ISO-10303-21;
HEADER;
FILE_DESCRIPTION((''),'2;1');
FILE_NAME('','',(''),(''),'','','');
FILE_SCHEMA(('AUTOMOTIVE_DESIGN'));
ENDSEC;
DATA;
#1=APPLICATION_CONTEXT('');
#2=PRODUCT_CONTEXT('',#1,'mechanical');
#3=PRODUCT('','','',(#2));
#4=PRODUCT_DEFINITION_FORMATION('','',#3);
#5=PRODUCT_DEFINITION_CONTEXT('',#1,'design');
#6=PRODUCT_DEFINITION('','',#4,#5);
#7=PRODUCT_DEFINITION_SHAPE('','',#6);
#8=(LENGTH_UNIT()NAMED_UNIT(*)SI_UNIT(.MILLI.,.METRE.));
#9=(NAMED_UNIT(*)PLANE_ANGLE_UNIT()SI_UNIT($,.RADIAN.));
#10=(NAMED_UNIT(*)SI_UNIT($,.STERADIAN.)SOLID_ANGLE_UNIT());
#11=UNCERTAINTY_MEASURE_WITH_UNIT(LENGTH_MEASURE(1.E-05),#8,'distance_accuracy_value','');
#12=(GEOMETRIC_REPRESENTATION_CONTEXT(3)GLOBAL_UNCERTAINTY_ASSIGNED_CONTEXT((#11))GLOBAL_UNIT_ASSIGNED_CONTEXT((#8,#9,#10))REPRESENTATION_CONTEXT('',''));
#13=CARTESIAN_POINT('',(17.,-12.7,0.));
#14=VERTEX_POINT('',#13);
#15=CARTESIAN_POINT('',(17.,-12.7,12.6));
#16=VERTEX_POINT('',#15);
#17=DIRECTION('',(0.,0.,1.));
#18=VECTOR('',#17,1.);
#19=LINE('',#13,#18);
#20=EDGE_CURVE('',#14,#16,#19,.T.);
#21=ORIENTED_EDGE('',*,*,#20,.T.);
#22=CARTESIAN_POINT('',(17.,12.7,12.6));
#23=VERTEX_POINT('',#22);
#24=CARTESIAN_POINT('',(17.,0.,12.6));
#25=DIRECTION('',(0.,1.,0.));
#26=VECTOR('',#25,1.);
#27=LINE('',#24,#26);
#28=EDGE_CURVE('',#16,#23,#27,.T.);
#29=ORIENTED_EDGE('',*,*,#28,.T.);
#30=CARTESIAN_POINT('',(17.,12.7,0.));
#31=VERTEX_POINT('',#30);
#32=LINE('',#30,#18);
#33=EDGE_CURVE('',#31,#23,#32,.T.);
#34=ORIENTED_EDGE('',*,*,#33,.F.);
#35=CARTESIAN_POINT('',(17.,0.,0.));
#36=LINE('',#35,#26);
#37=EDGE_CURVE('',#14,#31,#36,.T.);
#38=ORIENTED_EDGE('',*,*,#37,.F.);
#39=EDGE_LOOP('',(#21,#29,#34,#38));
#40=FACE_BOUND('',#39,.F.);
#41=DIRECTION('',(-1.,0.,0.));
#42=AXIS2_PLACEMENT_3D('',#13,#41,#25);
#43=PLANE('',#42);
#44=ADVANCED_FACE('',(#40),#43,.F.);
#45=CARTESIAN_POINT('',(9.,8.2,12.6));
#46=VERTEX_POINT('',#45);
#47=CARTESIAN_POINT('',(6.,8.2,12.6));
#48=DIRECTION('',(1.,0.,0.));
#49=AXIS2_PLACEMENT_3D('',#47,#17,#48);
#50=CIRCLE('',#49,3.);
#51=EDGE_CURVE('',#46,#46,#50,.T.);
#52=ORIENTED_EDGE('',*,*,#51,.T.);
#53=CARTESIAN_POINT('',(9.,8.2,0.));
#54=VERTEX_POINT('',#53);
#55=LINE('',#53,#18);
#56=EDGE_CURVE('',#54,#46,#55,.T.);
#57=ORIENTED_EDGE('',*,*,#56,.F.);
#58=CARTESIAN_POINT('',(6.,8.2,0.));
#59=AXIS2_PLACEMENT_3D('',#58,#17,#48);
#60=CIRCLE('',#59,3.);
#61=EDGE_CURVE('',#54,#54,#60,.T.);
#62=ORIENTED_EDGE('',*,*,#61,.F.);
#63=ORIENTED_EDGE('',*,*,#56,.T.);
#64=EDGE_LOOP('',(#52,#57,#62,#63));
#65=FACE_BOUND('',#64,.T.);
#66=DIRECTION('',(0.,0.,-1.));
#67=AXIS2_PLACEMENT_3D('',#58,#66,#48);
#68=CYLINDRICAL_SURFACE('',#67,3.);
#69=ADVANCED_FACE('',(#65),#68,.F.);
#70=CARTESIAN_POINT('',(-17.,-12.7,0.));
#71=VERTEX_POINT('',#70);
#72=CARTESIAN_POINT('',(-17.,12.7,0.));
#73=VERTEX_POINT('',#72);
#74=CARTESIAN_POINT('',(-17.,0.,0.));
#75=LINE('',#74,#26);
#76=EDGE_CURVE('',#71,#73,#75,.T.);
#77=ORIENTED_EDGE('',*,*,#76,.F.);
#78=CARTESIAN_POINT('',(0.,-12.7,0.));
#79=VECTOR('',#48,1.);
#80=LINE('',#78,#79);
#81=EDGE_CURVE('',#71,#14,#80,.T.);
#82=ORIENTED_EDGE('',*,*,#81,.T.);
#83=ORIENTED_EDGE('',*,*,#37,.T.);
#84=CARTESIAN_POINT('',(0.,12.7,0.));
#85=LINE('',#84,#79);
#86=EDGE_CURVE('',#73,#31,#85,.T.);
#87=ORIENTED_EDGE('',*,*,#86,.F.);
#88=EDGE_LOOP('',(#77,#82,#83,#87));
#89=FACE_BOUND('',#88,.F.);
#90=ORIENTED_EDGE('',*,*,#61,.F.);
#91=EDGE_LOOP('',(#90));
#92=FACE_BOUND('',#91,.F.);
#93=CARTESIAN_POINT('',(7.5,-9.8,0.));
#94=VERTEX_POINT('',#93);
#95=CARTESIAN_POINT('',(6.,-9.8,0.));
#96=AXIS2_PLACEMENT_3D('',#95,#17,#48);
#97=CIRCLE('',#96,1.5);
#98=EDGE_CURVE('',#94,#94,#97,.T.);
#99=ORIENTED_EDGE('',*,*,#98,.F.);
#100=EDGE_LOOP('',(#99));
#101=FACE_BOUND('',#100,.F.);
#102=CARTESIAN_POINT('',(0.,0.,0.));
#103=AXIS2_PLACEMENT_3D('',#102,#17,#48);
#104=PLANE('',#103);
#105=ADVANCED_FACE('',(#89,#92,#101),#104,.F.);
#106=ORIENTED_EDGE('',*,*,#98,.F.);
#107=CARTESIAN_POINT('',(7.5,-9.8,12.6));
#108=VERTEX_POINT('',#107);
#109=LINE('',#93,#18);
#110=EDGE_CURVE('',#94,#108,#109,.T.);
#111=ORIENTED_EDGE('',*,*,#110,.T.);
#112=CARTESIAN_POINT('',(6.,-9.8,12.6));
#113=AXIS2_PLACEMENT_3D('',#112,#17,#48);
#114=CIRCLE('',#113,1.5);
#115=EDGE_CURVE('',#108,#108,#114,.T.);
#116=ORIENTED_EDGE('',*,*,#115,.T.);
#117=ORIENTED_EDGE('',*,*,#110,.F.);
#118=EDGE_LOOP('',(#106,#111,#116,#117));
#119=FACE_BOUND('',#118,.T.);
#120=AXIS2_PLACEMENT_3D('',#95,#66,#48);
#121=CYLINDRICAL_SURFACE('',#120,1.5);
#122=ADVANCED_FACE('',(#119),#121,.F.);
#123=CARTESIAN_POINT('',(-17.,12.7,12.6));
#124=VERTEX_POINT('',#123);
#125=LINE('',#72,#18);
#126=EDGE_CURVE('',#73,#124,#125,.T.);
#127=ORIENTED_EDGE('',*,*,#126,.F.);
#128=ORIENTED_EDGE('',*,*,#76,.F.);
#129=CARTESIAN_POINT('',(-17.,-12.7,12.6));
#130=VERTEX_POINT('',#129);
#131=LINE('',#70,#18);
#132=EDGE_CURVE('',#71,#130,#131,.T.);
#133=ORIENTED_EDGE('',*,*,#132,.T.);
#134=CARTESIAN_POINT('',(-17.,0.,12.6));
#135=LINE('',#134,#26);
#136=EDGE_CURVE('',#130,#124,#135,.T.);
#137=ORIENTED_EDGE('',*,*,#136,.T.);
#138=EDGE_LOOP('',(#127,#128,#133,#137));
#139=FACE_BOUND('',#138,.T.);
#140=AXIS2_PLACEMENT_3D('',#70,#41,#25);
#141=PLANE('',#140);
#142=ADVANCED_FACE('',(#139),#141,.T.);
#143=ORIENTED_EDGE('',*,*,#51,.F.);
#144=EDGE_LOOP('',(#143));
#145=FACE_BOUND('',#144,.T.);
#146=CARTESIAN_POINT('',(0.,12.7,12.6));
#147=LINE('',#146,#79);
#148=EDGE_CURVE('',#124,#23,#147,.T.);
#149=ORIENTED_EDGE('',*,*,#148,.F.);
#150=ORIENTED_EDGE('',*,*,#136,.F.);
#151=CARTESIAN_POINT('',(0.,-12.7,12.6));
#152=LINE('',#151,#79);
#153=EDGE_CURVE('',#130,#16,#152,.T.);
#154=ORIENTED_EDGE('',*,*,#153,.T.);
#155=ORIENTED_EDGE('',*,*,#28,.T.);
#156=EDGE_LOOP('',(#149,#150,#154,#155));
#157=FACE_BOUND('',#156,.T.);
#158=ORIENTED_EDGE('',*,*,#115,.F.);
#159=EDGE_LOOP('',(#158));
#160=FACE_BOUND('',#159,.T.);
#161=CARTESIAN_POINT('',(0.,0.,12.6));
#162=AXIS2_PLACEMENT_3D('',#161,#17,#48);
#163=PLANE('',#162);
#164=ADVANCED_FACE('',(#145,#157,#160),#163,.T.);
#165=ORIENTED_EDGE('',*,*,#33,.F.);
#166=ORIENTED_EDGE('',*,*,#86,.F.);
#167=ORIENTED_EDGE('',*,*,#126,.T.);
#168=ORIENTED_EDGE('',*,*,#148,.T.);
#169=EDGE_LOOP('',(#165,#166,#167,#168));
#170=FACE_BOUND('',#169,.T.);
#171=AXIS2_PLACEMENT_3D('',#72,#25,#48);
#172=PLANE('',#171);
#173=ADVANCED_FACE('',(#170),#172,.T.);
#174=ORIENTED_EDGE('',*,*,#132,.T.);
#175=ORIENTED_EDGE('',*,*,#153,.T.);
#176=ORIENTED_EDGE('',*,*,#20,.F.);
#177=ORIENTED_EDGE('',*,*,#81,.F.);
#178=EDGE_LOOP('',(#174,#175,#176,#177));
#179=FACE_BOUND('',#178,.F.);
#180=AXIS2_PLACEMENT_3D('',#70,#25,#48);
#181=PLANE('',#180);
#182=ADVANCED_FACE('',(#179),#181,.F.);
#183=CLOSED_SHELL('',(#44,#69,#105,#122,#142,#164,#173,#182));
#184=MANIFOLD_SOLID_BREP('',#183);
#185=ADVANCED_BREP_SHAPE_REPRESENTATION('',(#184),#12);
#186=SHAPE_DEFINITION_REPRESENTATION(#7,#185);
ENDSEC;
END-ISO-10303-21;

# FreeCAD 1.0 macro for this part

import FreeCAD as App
import Part
import Sketcher
from FreeCAD import Vector


def add_polygon(sketch, points):
    """Adds a closed chain of lines whose ends are joined by coincident constraints."""
    first, n = sketch.GeometryCount, len(points)
    for a, b in zip(points, points[1:] + points[:1]):
        sketch.addGeometry(Part.LineSegment(App.Vector(*a, 0), App.Vector(*b, 0)), False)
    for i in range(n):
        sketch.addConstraint(Sketcher.Constraint("Coincident", first + i, 2, first + (i + 1) % n, 1))

doc = App.newDocument("Part")
body = doc.addObject("PartDesign::Body", "Body")

# Sketch on XY plane
sketch1 = body.newObject("Sketcher::SketchObject", "Sketch")
sketch1.AttachmentSupport = (doc.getObject("XY_Plane"), [""])
sketch1.MapMode = "FlatFace"
add_polygon(sketch1, [(-17, 12.7), (-17, -12.7), (17, -12.7), (17, 12.7)])  # lines 0-3
sketch1.addGeometry(Part.Circle(Vector(6, -9.8, 0), Vector(0, 0, 1), 1.5), False)  # 4
sketch1.addGeometry(Part.Circle(Vector(6, 8.2, 0), Vector(0, 0, 1), 3), False)  # 5
sketch1.addConstraint([
    Sketcher.Constraint("Vertical", 0),
    Sketcher.Constraint("Horizontal", 1),
    Sketcher.Constraint("Vertical", 2),
    Sketcher.Constraint("Horizontal", 3),
    Sketcher.Constraint("Symmetric", 0, 2, 2, 2, -1, 1),
    Sketcher.Constraint("Vertical", 4, 3, 5, 3),
    Sketcher.Constraint("Diameter", 4, 3.0),
    Sketcher.Constraint("Diameter", 5, 6.0),
    Sketcher.Constraint("DistanceX", 1, 1, 1, 2, 34.0),
    Sketcher.Constraint("DistanceY", 0, 2, 0, 1, 25.4),
    Sketcher.Constraint("DistanceX", -1, 1, 4, 3, 6.0),
    Sketcher.Constraint("DistanceY", 4, 3, 5, 3, 18.0),
    Sketcher.Constraint("DistanceY", 4, 3, -1, 1, 9.8),
])
pad1 = body.newObject("PartDesign::Pad", "Pad")
pad1.Profile = sketch1
pad1.Length = 12.6

doc.recompute()
